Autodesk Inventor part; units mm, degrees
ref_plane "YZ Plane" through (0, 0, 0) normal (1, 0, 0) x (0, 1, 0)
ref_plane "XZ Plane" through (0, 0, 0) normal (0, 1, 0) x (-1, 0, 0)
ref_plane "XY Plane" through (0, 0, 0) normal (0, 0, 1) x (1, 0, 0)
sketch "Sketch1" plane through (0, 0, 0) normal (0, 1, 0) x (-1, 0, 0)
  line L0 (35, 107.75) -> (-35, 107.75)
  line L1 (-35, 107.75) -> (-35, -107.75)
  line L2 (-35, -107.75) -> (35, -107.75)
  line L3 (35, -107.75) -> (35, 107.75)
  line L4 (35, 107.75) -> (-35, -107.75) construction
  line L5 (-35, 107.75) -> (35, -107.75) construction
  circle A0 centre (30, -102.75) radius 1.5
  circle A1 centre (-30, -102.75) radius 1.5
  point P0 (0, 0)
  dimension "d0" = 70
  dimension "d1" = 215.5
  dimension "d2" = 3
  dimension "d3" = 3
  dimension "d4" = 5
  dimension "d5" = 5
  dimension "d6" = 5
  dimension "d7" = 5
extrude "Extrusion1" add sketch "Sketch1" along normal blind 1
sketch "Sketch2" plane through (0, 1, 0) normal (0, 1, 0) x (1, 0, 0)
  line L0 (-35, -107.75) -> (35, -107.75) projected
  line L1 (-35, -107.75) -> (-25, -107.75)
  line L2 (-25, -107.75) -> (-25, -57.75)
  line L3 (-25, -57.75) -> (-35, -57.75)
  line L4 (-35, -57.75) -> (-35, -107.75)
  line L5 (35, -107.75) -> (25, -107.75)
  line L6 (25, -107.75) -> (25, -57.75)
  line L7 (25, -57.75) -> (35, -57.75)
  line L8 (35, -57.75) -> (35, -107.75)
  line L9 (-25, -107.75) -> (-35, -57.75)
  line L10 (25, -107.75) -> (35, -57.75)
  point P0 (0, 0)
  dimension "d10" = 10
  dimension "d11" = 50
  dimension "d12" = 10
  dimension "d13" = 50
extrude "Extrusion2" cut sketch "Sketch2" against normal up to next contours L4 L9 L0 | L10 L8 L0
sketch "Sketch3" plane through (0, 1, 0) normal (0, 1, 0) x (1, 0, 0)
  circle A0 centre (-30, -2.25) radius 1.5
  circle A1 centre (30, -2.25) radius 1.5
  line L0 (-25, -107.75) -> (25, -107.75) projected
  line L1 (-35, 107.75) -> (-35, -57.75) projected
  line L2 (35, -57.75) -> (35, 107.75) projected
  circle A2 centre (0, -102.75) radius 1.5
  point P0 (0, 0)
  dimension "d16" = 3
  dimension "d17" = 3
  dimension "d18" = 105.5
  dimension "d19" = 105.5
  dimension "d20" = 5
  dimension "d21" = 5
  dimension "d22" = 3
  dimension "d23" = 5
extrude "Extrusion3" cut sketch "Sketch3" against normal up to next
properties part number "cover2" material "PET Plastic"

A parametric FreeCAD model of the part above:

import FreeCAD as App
import Part
import Sketcher

V = App.Vector


def add_polygon(sketch, points):
    """Adds a closed chain of lines whose ends are joined by coincident constraints."""
    first, n = sketch.GeometryCount, len(points)
    for a, b in zip(points, points[1:] + points[:1]):
        sketch.addGeometry(Part.LineSegment(App.Vector(*a, 0), App.Vector(*b, 0)), False)
    for i in range(n):
        sketch.addConstraint(Sketcher.Constraint("Coincident", first + i, 2, first + (i + 1) % n, 1))

doc = App.newDocument("Part")
body = doc.addObject("PartDesign::Body", "Body")

# Sketch on XZ plane
sketch1 = doc.addObject("Sketcher::SketchObject", "Sketch")
body.addObject(sketch1)
sketch1.AttachmentSupport = (doc.XZ_Plane, [""])
sketch1.MapMode = "FlatFace"
add_polygon(sketch1, [(-35, -107.8), (-35, 107.8), (35, 107.8), (35, -107.8)])  # lines 0-3
sketch1.addGeometry(Part.Circle(V(30, -102.8, 0), V(0, 0, 1), 1.5), False)  # 4
sketch1.addGeometry(Part.Circle(V(-30, -102.8, 0), V(0, 0, 1), 1.5), False)  # 5
sketch1.addConstraint(Sketcher.Constraint("Vertical", 0))
sketch1.addConstraint(Sketcher.Constraint("Horizontal", 1))
sketch1.addConstraint(Sketcher.Constraint("Vertical", 2))
sketch1.addConstraint(Sketcher.Constraint("Horizontal", 3))
sketch1.addConstraint(Sketcher.Constraint("Equal", 4, 5))
sketch1.addConstraint(Sketcher.Constraint("Symmetric", 0, 2, 2, 2, -1, 1))
sketch1.addConstraint(Sketcher.Constraint("Symmetric", 4, 3, 5, 3, -2))
sketch1.addConstraint(Sketcher.Constraint("Diameter", 4, 3.0))
sketch1.addConstraint(Sketcher.Constraint("DistanceX", 1, 1, 1, 2, 70.0))
sketch1.addConstraint(Sketcher.Constraint("DistanceY", 0, 1, 0, 2, 215.5))
sketch1.addConstraint(Sketcher.Constraint("DistanceX", 0, 2, 5, 3, 5.0))
sketch1.addConstraint(Sketcher.Constraint("DistanceY", 2, 2, 4, 3, 5.0))
pad1 = doc.addObject("PartDesign::Pad", "Pad")
body.addObject(pad1)
pad1.Profile = sketch1
pad1.Length = 1
pad1.Reversed = True

# Sketch on XZ plane
sketch2 = doc.addObject("Sketcher::SketchObject", "Sketch001")
body.addObject(sketch2)
sketch2.AttachmentSupport = (doc.XZ_Plane, [""])
sketch2.MapMode = "FlatFace"
sketch2.AttachmentOffset = App.Placement(V(0, 0, -1), App.Rotation())
add_polygon(sketch2, [(-35, 58), (-35, 108), (-25, 108)])  # lines 0-2
add_polygon(sketch2, [(35, 58), (25, 108), (35, 108)])  # lines 3-5
sketch2.addConstraint(Sketcher.Constraint("Vertical", 0))
sketch2.addConstraint(Sketcher.Constraint("Horizontal", 1))
sketch2.addConstraint(Sketcher.Constraint("Horizontal", 4))
sketch2.addConstraint(Sketcher.Constraint("Vertical", 5))
sketch2.addConstraint(Sketcher.Constraint("Symmetric", 1, 2, 3, 2, -2))
sketch2.addConstraint(Sketcher.Constraint("Symmetric", 2, 2, 5, 2, -2))
sketch2.addConstraint(Sketcher.Constraint("DistanceX", 1, 1, 1, 2, 10.0))
sketch2.addConstraint(Sketcher.Constraint("DistanceY", 0, 1, 0, 2, 50.0))
sketch2.addConstraint(Sketcher.Constraint("DistanceX", 1, 2, 3, 2, 50.0))
sketch2.addConstraint(Sketcher.Constraint("DistanceY", -1, 1, 0, 2, 107.75))
pocket1 = doc.addObject("PartDesign::Pocket", "Pocket")
body.addObject(pocket1)
pocket1.Profile = sketch2
pocket1.Type = "UpToFirst"
pocket1.Reversed = True

# Sketch on XZ plane
sketch3 = doc.addObject("Sketcher::SketchObject", "Sketch002")
body.addObject(sketch3)
sketch3.AttachmentSupport = (doc.XZ_Plane, [""])
sketch3.MapMode = "FlatFace"
sketch3.AttachmentOffset = App.Placement(V(0, 0, -1), App.Rotation())
sketch3.addGeometry(Part.Circle(V(-30, 2.2, 0), V(0, 0, 1), 1.5), False)
sketch3.addGeometry(Part.Circle(V(30, 2.2, 0), V(0, 0, 1), 1.5), False)
sketch3.addGeometry(Part.Circle(V(0, 102.8, 0), V(0, 0, 1), 1.5), False)
sketch3.addConstraint(Sketcher.Constraint("Equal", 0, 1))
sketch3.addConstraint(Sketcher.Constraint("Equal", 1, 2))
sketch3.addConstraint(Sketcher.Constraint("Symmetric", 0, 3, 1, 3, -2))
sketch3.addConstraint(Sketcher.Constraint("PointOnObject", 2, 3, -2))
sketch3.addConstraint(Sketcher.Constraint("Diameter", 0, 3.0))
sketch3.addConstraint(Sketcher.Constraint("DistanceX", 0, 3, -1, 1, 30.0))
sketch3.addConstraint(Sketcher.Constraint("DistanceY", 0, 3, 2, 3, 100.5))
sketch3.addConstraint(Sketcher.Constraint("DistanceY", -1, 1, 0, 3, 2.25))
pocket2 = doc.addObject("PartDesign::Pocket", "Pocket001")
body.addObject(pocket2)
pocket2.Profile = sketch3
pocket2.Length = 1
pocket2.Reversed = True

doc.recompute()
